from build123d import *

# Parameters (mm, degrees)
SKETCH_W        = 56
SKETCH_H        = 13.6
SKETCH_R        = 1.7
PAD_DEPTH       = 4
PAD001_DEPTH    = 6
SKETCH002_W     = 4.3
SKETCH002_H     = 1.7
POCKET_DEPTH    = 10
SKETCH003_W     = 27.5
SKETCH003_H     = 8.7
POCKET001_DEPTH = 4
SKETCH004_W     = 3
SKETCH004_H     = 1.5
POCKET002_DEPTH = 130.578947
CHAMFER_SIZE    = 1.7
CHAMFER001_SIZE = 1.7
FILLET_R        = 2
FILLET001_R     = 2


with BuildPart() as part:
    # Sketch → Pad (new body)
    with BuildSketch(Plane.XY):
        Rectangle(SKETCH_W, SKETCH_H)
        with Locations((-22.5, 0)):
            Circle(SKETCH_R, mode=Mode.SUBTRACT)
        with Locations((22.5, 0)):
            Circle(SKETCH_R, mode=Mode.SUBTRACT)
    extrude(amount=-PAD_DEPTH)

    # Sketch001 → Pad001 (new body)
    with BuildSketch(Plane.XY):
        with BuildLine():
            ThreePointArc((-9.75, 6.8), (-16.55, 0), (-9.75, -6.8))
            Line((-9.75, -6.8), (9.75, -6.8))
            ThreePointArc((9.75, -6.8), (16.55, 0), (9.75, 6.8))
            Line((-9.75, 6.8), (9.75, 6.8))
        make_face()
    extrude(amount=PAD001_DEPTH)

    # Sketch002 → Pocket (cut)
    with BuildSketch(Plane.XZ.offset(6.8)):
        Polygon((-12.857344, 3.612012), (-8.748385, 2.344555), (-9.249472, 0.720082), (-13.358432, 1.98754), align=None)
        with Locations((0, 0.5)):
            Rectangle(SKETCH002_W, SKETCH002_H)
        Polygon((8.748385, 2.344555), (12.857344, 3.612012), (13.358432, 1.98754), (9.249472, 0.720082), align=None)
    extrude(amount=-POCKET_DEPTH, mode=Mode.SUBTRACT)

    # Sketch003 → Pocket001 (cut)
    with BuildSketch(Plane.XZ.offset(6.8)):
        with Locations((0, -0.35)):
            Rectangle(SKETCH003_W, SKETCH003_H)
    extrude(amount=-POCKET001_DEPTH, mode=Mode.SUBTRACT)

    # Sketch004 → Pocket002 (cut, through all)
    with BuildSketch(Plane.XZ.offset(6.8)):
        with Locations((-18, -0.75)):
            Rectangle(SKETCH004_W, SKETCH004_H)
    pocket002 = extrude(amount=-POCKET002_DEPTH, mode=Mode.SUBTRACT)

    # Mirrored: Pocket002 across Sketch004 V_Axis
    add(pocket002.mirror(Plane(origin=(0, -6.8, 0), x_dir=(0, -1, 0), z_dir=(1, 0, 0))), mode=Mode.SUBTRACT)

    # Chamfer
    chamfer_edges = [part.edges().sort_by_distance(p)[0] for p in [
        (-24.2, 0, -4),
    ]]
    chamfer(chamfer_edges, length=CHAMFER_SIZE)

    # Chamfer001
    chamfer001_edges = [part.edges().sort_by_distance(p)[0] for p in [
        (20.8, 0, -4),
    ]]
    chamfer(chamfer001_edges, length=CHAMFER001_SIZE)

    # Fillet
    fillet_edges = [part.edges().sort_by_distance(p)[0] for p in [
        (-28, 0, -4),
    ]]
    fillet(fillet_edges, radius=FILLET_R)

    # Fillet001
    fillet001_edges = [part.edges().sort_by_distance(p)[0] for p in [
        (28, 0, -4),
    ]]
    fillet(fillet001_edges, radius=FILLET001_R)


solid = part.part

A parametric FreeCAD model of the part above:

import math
import FreeCAD as App
import Part
import Sketcher


def edges_at(feature, points):
    """Names of the edges that pass closest to the given points."""
    edges = feature.Shape.Edges
    near = lambda p: min(range(len(edges)), key=lambda i: edges[i].distToShape(Part.Vertex(*p))[0])
    return sorted({f"Edge{near(p) + 1}" for p in points})

doc = App.newDocument("Part")
body = doc.addObject("PartDesign::Body", "Body")

# Sketch on XY plane
sketch1 = body.newObject("Sketcher::SketchObject", "Sketch")
sketch1.AttachmentSupport = (doc.getObject("XY_Plane"), [""])
sketch1.MapMode = "FlatFace"
sketch1.addGeometry([
    Part.LineSegment(App.Vector(-28, 6.8, 0), App.Vector(-28, -6.8, 0)),  # 0
    Part.LineSegment(App.Vector(-28, -6.8, 0), App.Vector(28, -6.8, 0)),  # 1
    Part.LineSegment(App.Vector(28, -6.8, 0), App.Vector(28, 6.8, 0)),  # 2
    Part.LineSegment(App.Vector(28, 6.8, 0), App.Vector(-28, 6.8, 0)),  # 3
    Part.Circle(App.Vector(-22.5, 0, 0), App.Vector(0, 0, 1), 1.7),  # 4
    Part.Circle(App.Vector(22.5, 0, 0), App.Vector(0, 0, 1), 1.7),  # 5
], False)
sketch1.addConstraint([
    Sketcher.Constraint("Coincident", 0, 2, 1, 1),
    Sketcher.Constraint("Coincident", 1, 2, 2, 1),
    Sketcher.Constraint("Coincident", 2, 2, 3, 1),
    Sketcher.Constraint("Coincident", 3, 2, 0, 1),
    Sketcher.Constraint("Vertical", 0),
    Sketcher.Constraint("Horizontal", 1),
    Sketcher.Constraint("Vertical", 2),
    Sketcher.Constraint("Horizontal", 3),
    Sketcher.Constraint("Equal", 4, 5),
    Sketcher.Constraint("Symmetric", 4, 3, 5, 3, -1, 1),
    Sketcher.Constraint("Symmetric", 0, 2, 2, 2, -1, 1),
    Sketcher.Constraint("PointOnObject", 4, 3, -1),
    Sketcher.Constraint("Diameter", 4, 3.4),
    Sketcher.Constraint("DistanceX", 1, 1, 1, 2, 56.0),
    Sketcher.Constraint("DistanceY", 0, 2, 0, 1, 13.6),
    Sketcher.Constraint("DistanceX", 4, 3, 5, 3, 45.0),
])
pad1 = body.newObject("PartDesign::Pad", "Pad")
pad1.Profile = sketch1
pad1.Length = 4
pad1.Reversed = True

# Sketch on XY plane
sketch2 = body.newObject("Sketcher::SketchObject", "Sketch001")
sketch2.AttachmentSupport = (doc.getObject("XY_Plane"), [""])
sketch2.MapMode = "FlatFace"
sketch2.addGeometry([
    Part.ArcOfCircle(Part.Circle(App.Vector(-10, 0, 0), App.Vector(0, 0, 1), 7), math.radians(90), math.radians(270)),
    Part.LineSegment(App.Vector(-10, -7, 0), App.Vector(10, -7, 0)),
    Part.ArcOfCircle(Part.Circle(App.Vector(10, 0, 0), App.Vector(0, 0, 1), 7), math.radians(-90), math.radians(90)),
    Part.LineSegment(App.Vector(10, 7, 0), App.Vector(-10, 7, 0)),
], False)
sketch2.addConstraint([
    Sketcher.Constraint("Tangent", 0, 2, 1, 1),
    Sketcher.Constraint("Tangent", 1, 2, 2, 1),
    Sketcher.Constraint("Tangent", 2, 2, 3, 1),
    Sketcher.Constraint("Tangent", 3, 2, 0, 1),
    Sketcher.Constraint("Horizontal", 1),
    Sketcher.Constraint("Horizontal", 3),
    Sketcher.Constraint("Symmetric", 0, 3, 2, 3, -1, 1),
    Sketcher.Constraint("Radius", 0, 6.8),
    Sketcher.Constraint("DistanceX", 1, 1, 1, 2, 19.5),
])
pad2 = body.newObject("PartDesign::Pad", "Pad001")
pad2.Profile = sketch2
pad2.Length = 6

# Sketch on XZ plane
sketch3 = body.newObject("Sketcher::SketchObject", "Sketch002")
sketch3.AttachmentSupport = (doc.getObject("XZ_Plane"), [""])
sketch3.MapMode = "FlatFace"
sketch3.AttachmentOffset = App.Placement(App.Vector(0, 0, 6.8), App.Rotation())
sketch3.addGeometry([
    Part.LineSegment(App.Vector(-8.7, 2.3, 0), App.Vector(-12.9, 3.6, 0)),  # 0
    Part.LineSegment(App.Vector(-12.9, 3.6, 0), App.Vector(-13.4, 2, 0)),  # 1
    Part.LineSegment(App.Vector(-13.4, 2, 0), App.Vector(-9.2, 0.7, 0)),  # 2
    Part.LineSegment(App.Vector(-9.2, 0.7, 0), App.Vector(-8.7, 2.3, 0)),  # 3
    Part.LineSegment(App.Vector(-2.1, 1.4, 0), App.Vector(-2.1, -0.3, 0)),  # 4
    Part.LineSegment(App.Vector(-2.1, -0.3, 0), App.Vector(2.1, -0.3, 0)),  # 5
    Part.LineSegment(App.Vector(2.1, -0.3, 0), App.Vector(2.1, 1.4, 0)),  # 6
    Part.LineSegment(App.Vector(2.1, 1.4, 0), App.Vector(-2.1, 1.4, 0)),  # 7
    Part.LineSegment(App.Vector(12.9, 3.6, 0), App.Vector(8.7, 2.3, 0)),  # 8
    Part.LineSegment(App.Vector(8.7, 2.3, 0), App.Vector(9.2, 0.7, 0)),  # 9
    Part.LineSegment(App.Vector(9.2, 0.7, 0), App.Vector(13.4, 2, 0)),  # 10
    Part.LineSegment(App.Vector(13.4, 2, 0), App.Vector(12.9, 3.6, 0)),  # 11
], False)
sketch3.addConstraint([
    Sketcher.Constraint("Coincident", 0, 2, 1, 1),
    Sketcher.Constraint("Coincident", 1, 2, 2, 1),
    Sketcher.Constraint("Coincident", 2, 2, 3, 1),
    Sketcher.Constraint("Coincident", 3, 2, 0, 1),
    Sketcher.Constraint("Coincident", 4, 2, 5, 1),
    Sketcher.Constraint("Coincident", 5, 2, 6, 1),
    Sketcher.Constraint("Coincident", 6, 2, 7, 1),
    Sketcher.Constraint("Coincident", 7, 2, 4, 1),
    Sketcher.Constraint("Coincident", 8, 2, 9, 1),
    Sketcher.Constraint("Coincident", 9, 2, 10, 1),
    Sketcher.Constraint("Coincident", 10, 2, 11, 1),
    Sketcher.Constraint("Coincident", 11, 2, 8, 1),
    Sketcher.Constraint("Vertical", 4),
    Sketcher.Constraint("Horizontal", 5),
    Sketcher.Constraint("Vertical", 6),
    Sketcher.Constraint("Horizontal", 7),
    Sketcher.Constraint("Symmetric", 3, 2, 8, 2, -2),
    Sketcher.Constraint("Symmetric", 2, 2, 9, 2, -2),
    Sketcher.Constraint("Symmetric", 1, 2, 10, 2, -2),
    Sketcher.Constraint("Symmetric", 0, 2, 11, 2, -2),
    Sketcher.Constraint("Perpendicular", 0, 1),
    Sketcher.Constraint("Perpendicular", 1, 2),
    Sketcher.Constraint("Perpendicular", 2, 3),
    Sketcher.Constraint("DistanceX", 5, 1, 5, 2, 4.3),
    Sketcher.Constraint("DistanceY", 4, 2, 4, 1, 1.7),
    Sketcher.Constraint("Distance", 0, 4.299999),
    Sketcher.Constraint("Distance", 1, 1.7),
    Sketcher.Constraint("DistanceX", 4, 2, -1, 1, 2.15),
    Sketcher.Constraint("DistanceY", 4, 2, -1, 1, 0.35),
    Sketcher.Constraint("DistanceY", -1, 1, 0, 2, 3.612012),
    Sketcher.Constraint("DistanceY", -1, 1, 1, 2, 1.98754),
    Sketcher.Constraint("DistanceX", 3, 2, 8, 2, 17.49677),
])
pocket1 = body.newObject("PartDesign::Pocket", "Pocket")
pocket1.Profile = sketch3
pocket1.Length = 10

# Sketch on XZ plane
sketch4 = body.newObject("Sketcher::SketchObject", "Sketch003")
sketch4.AttachmentSupport = (doc.getObject("XZ_Plane"), [""])
sketch4.MapMode = "FlatFace"
sketch4.AttachmentOffset = App.Placement(App.Vector(0, 0, 6.8), App.Rotation())
sketch4.addGeometry([
    Part.LineSegment(App.Vector(-14, 4, 0), App.Vector(-14, -5, 0)),
    Part.LineSegment(App.Vector(-14, -5, 0), App.Vector(14, -5, 0)),
    Part.LineSegment(App.Vector(14, -5, 0), App.Vector(14, 4, 0)),
    Part.LineSegment(App.Vector(14, 4, 0), App.Vector(-14, 4, 0)),
], False)
sketch4.addConstraint([
    Sketcher.Constraint("Coincident", 0, 2, 1, 1),
    Sketcher.Constraint("Coincident", 1, 2, 2, 1),
    Sketcher.Constraint("Coincident", 2, 2, 3, 1),
    Sketcher.Constraint("Coincident", 3, 2, 0, 1),
    Sketcher.Constraint("Vertical", 0),
    Sketcher.Constraint("Horizontal", 1),
    Sketcher.Constraint("Vertical", 2),
    Sketcher.Constraint("Horizontal", 3),
    Sketcher.Constraint("DistanceX", 1, 1, 1, 2, 27.5),
    Sketcher.Constraint("DistanceY", 0, 2, 0, 1, 8.7),
    Sketcher.Constraint("DistanceY", -1, 1, 2, 2, 4.0),
    Sketcher.Constraint("DistanceX", 0, 2, -1, 1, 13.75),
])
pocket2 = body.newObject("PartDesign::Pocket", "Pocket001")
pocket2.Profile = sketch4
pocket2.Length = 4

# Sketch on XZ plane
sketch5 = body.newObject("Sketcher::SketchObject", "Sketch004")
sketch5.AttachmentSupport = (doc.getObject("XZ_Plane"), [""])
sketch5.MapMode = "FlatFace"
sketch5.AttachmentOffset = App.Placement(App.Vector(0, 0, 6.8), App.Rotation())
sketch5.addGeometry([
    Part.LineSegment(App.Vector(-19.5, 0, 0), App.Vector(-19.5, -1.5, 0)),
    Part.LineSegment(App.Vector(-19.5, -1.5, 0), App.Vector(-16.5, -1.5, 0)),
    Part.LineSegment(App.Vector(-16.5, -1.5, 0), App.Vector(-16.5, 0, 0)),
    Part.LineSegment(App.Vector(-16.5, 0, 0), App.Vector(-19.5, 0, 0)),
], False)
sketch5.addConstraint([
    Sketcher.Constraint("Coincident", 0, 2, 1, 1),
    Sketcher.Constraint("Coincident", 1, 2, 2, 1),
    Sketcher.Constraint("Coincident", 2, 2, 3, 1),
    Sketcher.Constraint("Coincident", 3, 2, 0, 1),
    Sketcher.Constraint("Vertical", 0),
    Sketcher.Constraint("Horizontal", 1),
    Sketcher.Constraint("Vertical", 2),
    Sketcher.Constraint("Horizontal", 3),
    Sketcher.Constraint("PointOnObject", 2, 2, -1),
    Sketcher.Constraint("DistanceX", 1, 1, 1, 2, 3.0),
    Sketcher.Constraint("DistanceY", 0, 2, 0, 1, 1.5),
    Sketcher.Constraint("DistanceX", 0, 2, -1, 1, 19.5),
])
pocket3 = body.newObject("PartDesign::Pocket", "Pocket002")
pocket3.Profile = sketch5
pocket3.Type = "ThroughAll"
doc.recompute()

mirrored = body.newObject("PartDesign::Mirrored", "Mirrored")
mirrored.Originals = [pocket3]
mirrored.MirrorPlane = (doc.getObject("YZ_Plane"), [""])
body.Tip = mirrored
doc.recompute()

chamfer = body.newObject("PartDesign::Chamfer", "Chamfer")
chamfer.Base = (mirrored, edges_at(mirrored, [(-24.2, 0, -4)]))
chamfer.Size = 1.7
doc.recompute()

chamfer2 = body.newObject("PartDesign::Chamfer", "Chamfer001")
chamfer2.Base = (chamfer, edges_at(chamfer, [(20.8, 0, -4)]))
chamfer2.Size = 1.7
doc.recompute()

fillet = body.newObject("PartDesign::Fillet", "Fillet")
fillet.Base = (chamfer2, edges_at(chamfer2, [(-28, 0, -4)]))
fillet.Radius = 2
doc.recompute()

fillet2 = body.newObject("PartDesign::Fillet", "Fillet001")
fillet2.Base = (fillet, edges_at(fillet, [(28, 0, -4)]))
fillet2.Radius = 2

doc.recompute()
